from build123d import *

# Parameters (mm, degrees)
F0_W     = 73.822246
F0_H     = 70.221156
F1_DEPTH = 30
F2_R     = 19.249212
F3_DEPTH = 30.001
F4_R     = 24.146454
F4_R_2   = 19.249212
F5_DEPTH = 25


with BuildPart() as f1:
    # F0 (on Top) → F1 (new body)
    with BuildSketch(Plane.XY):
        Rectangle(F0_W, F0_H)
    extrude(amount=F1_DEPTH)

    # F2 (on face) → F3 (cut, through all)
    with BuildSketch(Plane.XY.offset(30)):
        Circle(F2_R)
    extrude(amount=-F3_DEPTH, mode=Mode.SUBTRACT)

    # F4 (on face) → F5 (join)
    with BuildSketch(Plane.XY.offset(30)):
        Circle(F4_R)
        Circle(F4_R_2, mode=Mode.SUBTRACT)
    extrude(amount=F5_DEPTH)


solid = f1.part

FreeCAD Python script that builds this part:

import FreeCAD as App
import Part
import Sketcher
from FreeCAD import Vector
Q = App.Units.Quantity

doc = App.newDocument("Part")
body = doc.addObject("PartDesign::Body", "Body")

sketch1 = body.newObject("Sketcher::SketchObject", "Sketch")
sketch1.AttachmentSupport = (doc.getObject("XY_Plane"), [""])
sketch1.MapMode = "FlatFace"
sketch1.addGeometry([
    Part.LineSegment(Vector(-37, 35, 0), Vector(-37, -35, 0)),
    Part.LineSegment(Vector(-37, -35, 0), Vector(37, -35, 0)),
    Part.LineSegment(Vector(37, -35, 0), Vector(37, 35, 0)),
    Part.LineSegment(Vector(37, 35, 0), Vector(-37, 35, 0)),
], False)
sketch1.addConstraint([
    Sketcher.Constraint("Coincident", 0, 2, 1, 1),
    Sketcher.Constraint("Coincident", 1, 2, 2, 1),
    Sketcher.Constraint("Coincident", 2, 2, 3, 1),
    Sketcher.Constraint("Coincident", 3, 2, 0, 1),
    Sketcher.Constraint("Vertical", 0),
    Sketcher.Constraint("Horizontal", 1),
    Sketcher.Constraint("Vertical", 2),
    Sketcher.Constraint("Horizontal", 3),
    Sketcher.Constraint("Symmetric", 0, 2, 2, 2, -1, 1),
    Sketcher.Constraint("DistanceX", 1, 1, 1, 2, Q("73.822246 mm")),
    Sketcher.Constraint("DistanceY", 0, 2, 0, 1, Q("70.221156 mm")),
])
pad1 = body.newObject("PartDesign::Pad", "Pad")
pad1.Profile = sketch1
pad1.Length = 30

sketch2 = body.newObject("Sketcher::SketchObject", "Sketch001")
sketch2.AttachmentSupport = (doc.getObject("XY_Plane"), [""])
sketch2.MapMode = "FlatFace"
sketch2.AttachmentOffset = App.Placement(Vector(0, 0, 30), App.Rotation())
sketch2.addGeometry(Part.Circle(Vector(0, 0, 0), Vector(0, 0, 1), 19), False)
sketch2.addConstraint([
    Sketcher.Constraint("Coincident", 0, 3, -1, 1),
    Sketcher.Constraint("Diameter", 0, Q("38.498424 mm")),
])
pocket1 = body.newObject("PartDesign::Pocket", "Pocket")
pocket1.Profile = sketch2
pocket1.Type = "ThroughAll"

sketch3 = body.newObject("Sketcher::SketchObject", "Sketch002")
sketch3.AttachmentSupport = (doc.getObject("XY_Plane"), [""])
sketch3.MapMode = "FlatFace"
sketch3.AttachmentOffset = App.Placement(Vector(0, 0, 30), App.Rotation())
sketch3.addGeometry([
    Part.Circle(Vector(0, 0, 0), Vector(0, 0, 1), 24),
    Part.Circle(Vector(0, 0, 0), Vector(0, 0, 1), 19),
], False)
sketch3.addConstraint([
    Sketcher.Constraint("Coincident", 0, 3, -1, 1),
    Sketcher.Constraint("Coincident", 1, 3, -1, 1),
    Sketcher.Constraint("Diameter", 0, Q("48.292908 mm")),
    Sketcher.Constraint("Diameter", 1, Q("38.498424 mm")),
])
pad2 = body.newObject("PartDesign::Pad", "Pad001")
pad2.Profile = sketch3
pad2.Length = 25

doc.recompute()
